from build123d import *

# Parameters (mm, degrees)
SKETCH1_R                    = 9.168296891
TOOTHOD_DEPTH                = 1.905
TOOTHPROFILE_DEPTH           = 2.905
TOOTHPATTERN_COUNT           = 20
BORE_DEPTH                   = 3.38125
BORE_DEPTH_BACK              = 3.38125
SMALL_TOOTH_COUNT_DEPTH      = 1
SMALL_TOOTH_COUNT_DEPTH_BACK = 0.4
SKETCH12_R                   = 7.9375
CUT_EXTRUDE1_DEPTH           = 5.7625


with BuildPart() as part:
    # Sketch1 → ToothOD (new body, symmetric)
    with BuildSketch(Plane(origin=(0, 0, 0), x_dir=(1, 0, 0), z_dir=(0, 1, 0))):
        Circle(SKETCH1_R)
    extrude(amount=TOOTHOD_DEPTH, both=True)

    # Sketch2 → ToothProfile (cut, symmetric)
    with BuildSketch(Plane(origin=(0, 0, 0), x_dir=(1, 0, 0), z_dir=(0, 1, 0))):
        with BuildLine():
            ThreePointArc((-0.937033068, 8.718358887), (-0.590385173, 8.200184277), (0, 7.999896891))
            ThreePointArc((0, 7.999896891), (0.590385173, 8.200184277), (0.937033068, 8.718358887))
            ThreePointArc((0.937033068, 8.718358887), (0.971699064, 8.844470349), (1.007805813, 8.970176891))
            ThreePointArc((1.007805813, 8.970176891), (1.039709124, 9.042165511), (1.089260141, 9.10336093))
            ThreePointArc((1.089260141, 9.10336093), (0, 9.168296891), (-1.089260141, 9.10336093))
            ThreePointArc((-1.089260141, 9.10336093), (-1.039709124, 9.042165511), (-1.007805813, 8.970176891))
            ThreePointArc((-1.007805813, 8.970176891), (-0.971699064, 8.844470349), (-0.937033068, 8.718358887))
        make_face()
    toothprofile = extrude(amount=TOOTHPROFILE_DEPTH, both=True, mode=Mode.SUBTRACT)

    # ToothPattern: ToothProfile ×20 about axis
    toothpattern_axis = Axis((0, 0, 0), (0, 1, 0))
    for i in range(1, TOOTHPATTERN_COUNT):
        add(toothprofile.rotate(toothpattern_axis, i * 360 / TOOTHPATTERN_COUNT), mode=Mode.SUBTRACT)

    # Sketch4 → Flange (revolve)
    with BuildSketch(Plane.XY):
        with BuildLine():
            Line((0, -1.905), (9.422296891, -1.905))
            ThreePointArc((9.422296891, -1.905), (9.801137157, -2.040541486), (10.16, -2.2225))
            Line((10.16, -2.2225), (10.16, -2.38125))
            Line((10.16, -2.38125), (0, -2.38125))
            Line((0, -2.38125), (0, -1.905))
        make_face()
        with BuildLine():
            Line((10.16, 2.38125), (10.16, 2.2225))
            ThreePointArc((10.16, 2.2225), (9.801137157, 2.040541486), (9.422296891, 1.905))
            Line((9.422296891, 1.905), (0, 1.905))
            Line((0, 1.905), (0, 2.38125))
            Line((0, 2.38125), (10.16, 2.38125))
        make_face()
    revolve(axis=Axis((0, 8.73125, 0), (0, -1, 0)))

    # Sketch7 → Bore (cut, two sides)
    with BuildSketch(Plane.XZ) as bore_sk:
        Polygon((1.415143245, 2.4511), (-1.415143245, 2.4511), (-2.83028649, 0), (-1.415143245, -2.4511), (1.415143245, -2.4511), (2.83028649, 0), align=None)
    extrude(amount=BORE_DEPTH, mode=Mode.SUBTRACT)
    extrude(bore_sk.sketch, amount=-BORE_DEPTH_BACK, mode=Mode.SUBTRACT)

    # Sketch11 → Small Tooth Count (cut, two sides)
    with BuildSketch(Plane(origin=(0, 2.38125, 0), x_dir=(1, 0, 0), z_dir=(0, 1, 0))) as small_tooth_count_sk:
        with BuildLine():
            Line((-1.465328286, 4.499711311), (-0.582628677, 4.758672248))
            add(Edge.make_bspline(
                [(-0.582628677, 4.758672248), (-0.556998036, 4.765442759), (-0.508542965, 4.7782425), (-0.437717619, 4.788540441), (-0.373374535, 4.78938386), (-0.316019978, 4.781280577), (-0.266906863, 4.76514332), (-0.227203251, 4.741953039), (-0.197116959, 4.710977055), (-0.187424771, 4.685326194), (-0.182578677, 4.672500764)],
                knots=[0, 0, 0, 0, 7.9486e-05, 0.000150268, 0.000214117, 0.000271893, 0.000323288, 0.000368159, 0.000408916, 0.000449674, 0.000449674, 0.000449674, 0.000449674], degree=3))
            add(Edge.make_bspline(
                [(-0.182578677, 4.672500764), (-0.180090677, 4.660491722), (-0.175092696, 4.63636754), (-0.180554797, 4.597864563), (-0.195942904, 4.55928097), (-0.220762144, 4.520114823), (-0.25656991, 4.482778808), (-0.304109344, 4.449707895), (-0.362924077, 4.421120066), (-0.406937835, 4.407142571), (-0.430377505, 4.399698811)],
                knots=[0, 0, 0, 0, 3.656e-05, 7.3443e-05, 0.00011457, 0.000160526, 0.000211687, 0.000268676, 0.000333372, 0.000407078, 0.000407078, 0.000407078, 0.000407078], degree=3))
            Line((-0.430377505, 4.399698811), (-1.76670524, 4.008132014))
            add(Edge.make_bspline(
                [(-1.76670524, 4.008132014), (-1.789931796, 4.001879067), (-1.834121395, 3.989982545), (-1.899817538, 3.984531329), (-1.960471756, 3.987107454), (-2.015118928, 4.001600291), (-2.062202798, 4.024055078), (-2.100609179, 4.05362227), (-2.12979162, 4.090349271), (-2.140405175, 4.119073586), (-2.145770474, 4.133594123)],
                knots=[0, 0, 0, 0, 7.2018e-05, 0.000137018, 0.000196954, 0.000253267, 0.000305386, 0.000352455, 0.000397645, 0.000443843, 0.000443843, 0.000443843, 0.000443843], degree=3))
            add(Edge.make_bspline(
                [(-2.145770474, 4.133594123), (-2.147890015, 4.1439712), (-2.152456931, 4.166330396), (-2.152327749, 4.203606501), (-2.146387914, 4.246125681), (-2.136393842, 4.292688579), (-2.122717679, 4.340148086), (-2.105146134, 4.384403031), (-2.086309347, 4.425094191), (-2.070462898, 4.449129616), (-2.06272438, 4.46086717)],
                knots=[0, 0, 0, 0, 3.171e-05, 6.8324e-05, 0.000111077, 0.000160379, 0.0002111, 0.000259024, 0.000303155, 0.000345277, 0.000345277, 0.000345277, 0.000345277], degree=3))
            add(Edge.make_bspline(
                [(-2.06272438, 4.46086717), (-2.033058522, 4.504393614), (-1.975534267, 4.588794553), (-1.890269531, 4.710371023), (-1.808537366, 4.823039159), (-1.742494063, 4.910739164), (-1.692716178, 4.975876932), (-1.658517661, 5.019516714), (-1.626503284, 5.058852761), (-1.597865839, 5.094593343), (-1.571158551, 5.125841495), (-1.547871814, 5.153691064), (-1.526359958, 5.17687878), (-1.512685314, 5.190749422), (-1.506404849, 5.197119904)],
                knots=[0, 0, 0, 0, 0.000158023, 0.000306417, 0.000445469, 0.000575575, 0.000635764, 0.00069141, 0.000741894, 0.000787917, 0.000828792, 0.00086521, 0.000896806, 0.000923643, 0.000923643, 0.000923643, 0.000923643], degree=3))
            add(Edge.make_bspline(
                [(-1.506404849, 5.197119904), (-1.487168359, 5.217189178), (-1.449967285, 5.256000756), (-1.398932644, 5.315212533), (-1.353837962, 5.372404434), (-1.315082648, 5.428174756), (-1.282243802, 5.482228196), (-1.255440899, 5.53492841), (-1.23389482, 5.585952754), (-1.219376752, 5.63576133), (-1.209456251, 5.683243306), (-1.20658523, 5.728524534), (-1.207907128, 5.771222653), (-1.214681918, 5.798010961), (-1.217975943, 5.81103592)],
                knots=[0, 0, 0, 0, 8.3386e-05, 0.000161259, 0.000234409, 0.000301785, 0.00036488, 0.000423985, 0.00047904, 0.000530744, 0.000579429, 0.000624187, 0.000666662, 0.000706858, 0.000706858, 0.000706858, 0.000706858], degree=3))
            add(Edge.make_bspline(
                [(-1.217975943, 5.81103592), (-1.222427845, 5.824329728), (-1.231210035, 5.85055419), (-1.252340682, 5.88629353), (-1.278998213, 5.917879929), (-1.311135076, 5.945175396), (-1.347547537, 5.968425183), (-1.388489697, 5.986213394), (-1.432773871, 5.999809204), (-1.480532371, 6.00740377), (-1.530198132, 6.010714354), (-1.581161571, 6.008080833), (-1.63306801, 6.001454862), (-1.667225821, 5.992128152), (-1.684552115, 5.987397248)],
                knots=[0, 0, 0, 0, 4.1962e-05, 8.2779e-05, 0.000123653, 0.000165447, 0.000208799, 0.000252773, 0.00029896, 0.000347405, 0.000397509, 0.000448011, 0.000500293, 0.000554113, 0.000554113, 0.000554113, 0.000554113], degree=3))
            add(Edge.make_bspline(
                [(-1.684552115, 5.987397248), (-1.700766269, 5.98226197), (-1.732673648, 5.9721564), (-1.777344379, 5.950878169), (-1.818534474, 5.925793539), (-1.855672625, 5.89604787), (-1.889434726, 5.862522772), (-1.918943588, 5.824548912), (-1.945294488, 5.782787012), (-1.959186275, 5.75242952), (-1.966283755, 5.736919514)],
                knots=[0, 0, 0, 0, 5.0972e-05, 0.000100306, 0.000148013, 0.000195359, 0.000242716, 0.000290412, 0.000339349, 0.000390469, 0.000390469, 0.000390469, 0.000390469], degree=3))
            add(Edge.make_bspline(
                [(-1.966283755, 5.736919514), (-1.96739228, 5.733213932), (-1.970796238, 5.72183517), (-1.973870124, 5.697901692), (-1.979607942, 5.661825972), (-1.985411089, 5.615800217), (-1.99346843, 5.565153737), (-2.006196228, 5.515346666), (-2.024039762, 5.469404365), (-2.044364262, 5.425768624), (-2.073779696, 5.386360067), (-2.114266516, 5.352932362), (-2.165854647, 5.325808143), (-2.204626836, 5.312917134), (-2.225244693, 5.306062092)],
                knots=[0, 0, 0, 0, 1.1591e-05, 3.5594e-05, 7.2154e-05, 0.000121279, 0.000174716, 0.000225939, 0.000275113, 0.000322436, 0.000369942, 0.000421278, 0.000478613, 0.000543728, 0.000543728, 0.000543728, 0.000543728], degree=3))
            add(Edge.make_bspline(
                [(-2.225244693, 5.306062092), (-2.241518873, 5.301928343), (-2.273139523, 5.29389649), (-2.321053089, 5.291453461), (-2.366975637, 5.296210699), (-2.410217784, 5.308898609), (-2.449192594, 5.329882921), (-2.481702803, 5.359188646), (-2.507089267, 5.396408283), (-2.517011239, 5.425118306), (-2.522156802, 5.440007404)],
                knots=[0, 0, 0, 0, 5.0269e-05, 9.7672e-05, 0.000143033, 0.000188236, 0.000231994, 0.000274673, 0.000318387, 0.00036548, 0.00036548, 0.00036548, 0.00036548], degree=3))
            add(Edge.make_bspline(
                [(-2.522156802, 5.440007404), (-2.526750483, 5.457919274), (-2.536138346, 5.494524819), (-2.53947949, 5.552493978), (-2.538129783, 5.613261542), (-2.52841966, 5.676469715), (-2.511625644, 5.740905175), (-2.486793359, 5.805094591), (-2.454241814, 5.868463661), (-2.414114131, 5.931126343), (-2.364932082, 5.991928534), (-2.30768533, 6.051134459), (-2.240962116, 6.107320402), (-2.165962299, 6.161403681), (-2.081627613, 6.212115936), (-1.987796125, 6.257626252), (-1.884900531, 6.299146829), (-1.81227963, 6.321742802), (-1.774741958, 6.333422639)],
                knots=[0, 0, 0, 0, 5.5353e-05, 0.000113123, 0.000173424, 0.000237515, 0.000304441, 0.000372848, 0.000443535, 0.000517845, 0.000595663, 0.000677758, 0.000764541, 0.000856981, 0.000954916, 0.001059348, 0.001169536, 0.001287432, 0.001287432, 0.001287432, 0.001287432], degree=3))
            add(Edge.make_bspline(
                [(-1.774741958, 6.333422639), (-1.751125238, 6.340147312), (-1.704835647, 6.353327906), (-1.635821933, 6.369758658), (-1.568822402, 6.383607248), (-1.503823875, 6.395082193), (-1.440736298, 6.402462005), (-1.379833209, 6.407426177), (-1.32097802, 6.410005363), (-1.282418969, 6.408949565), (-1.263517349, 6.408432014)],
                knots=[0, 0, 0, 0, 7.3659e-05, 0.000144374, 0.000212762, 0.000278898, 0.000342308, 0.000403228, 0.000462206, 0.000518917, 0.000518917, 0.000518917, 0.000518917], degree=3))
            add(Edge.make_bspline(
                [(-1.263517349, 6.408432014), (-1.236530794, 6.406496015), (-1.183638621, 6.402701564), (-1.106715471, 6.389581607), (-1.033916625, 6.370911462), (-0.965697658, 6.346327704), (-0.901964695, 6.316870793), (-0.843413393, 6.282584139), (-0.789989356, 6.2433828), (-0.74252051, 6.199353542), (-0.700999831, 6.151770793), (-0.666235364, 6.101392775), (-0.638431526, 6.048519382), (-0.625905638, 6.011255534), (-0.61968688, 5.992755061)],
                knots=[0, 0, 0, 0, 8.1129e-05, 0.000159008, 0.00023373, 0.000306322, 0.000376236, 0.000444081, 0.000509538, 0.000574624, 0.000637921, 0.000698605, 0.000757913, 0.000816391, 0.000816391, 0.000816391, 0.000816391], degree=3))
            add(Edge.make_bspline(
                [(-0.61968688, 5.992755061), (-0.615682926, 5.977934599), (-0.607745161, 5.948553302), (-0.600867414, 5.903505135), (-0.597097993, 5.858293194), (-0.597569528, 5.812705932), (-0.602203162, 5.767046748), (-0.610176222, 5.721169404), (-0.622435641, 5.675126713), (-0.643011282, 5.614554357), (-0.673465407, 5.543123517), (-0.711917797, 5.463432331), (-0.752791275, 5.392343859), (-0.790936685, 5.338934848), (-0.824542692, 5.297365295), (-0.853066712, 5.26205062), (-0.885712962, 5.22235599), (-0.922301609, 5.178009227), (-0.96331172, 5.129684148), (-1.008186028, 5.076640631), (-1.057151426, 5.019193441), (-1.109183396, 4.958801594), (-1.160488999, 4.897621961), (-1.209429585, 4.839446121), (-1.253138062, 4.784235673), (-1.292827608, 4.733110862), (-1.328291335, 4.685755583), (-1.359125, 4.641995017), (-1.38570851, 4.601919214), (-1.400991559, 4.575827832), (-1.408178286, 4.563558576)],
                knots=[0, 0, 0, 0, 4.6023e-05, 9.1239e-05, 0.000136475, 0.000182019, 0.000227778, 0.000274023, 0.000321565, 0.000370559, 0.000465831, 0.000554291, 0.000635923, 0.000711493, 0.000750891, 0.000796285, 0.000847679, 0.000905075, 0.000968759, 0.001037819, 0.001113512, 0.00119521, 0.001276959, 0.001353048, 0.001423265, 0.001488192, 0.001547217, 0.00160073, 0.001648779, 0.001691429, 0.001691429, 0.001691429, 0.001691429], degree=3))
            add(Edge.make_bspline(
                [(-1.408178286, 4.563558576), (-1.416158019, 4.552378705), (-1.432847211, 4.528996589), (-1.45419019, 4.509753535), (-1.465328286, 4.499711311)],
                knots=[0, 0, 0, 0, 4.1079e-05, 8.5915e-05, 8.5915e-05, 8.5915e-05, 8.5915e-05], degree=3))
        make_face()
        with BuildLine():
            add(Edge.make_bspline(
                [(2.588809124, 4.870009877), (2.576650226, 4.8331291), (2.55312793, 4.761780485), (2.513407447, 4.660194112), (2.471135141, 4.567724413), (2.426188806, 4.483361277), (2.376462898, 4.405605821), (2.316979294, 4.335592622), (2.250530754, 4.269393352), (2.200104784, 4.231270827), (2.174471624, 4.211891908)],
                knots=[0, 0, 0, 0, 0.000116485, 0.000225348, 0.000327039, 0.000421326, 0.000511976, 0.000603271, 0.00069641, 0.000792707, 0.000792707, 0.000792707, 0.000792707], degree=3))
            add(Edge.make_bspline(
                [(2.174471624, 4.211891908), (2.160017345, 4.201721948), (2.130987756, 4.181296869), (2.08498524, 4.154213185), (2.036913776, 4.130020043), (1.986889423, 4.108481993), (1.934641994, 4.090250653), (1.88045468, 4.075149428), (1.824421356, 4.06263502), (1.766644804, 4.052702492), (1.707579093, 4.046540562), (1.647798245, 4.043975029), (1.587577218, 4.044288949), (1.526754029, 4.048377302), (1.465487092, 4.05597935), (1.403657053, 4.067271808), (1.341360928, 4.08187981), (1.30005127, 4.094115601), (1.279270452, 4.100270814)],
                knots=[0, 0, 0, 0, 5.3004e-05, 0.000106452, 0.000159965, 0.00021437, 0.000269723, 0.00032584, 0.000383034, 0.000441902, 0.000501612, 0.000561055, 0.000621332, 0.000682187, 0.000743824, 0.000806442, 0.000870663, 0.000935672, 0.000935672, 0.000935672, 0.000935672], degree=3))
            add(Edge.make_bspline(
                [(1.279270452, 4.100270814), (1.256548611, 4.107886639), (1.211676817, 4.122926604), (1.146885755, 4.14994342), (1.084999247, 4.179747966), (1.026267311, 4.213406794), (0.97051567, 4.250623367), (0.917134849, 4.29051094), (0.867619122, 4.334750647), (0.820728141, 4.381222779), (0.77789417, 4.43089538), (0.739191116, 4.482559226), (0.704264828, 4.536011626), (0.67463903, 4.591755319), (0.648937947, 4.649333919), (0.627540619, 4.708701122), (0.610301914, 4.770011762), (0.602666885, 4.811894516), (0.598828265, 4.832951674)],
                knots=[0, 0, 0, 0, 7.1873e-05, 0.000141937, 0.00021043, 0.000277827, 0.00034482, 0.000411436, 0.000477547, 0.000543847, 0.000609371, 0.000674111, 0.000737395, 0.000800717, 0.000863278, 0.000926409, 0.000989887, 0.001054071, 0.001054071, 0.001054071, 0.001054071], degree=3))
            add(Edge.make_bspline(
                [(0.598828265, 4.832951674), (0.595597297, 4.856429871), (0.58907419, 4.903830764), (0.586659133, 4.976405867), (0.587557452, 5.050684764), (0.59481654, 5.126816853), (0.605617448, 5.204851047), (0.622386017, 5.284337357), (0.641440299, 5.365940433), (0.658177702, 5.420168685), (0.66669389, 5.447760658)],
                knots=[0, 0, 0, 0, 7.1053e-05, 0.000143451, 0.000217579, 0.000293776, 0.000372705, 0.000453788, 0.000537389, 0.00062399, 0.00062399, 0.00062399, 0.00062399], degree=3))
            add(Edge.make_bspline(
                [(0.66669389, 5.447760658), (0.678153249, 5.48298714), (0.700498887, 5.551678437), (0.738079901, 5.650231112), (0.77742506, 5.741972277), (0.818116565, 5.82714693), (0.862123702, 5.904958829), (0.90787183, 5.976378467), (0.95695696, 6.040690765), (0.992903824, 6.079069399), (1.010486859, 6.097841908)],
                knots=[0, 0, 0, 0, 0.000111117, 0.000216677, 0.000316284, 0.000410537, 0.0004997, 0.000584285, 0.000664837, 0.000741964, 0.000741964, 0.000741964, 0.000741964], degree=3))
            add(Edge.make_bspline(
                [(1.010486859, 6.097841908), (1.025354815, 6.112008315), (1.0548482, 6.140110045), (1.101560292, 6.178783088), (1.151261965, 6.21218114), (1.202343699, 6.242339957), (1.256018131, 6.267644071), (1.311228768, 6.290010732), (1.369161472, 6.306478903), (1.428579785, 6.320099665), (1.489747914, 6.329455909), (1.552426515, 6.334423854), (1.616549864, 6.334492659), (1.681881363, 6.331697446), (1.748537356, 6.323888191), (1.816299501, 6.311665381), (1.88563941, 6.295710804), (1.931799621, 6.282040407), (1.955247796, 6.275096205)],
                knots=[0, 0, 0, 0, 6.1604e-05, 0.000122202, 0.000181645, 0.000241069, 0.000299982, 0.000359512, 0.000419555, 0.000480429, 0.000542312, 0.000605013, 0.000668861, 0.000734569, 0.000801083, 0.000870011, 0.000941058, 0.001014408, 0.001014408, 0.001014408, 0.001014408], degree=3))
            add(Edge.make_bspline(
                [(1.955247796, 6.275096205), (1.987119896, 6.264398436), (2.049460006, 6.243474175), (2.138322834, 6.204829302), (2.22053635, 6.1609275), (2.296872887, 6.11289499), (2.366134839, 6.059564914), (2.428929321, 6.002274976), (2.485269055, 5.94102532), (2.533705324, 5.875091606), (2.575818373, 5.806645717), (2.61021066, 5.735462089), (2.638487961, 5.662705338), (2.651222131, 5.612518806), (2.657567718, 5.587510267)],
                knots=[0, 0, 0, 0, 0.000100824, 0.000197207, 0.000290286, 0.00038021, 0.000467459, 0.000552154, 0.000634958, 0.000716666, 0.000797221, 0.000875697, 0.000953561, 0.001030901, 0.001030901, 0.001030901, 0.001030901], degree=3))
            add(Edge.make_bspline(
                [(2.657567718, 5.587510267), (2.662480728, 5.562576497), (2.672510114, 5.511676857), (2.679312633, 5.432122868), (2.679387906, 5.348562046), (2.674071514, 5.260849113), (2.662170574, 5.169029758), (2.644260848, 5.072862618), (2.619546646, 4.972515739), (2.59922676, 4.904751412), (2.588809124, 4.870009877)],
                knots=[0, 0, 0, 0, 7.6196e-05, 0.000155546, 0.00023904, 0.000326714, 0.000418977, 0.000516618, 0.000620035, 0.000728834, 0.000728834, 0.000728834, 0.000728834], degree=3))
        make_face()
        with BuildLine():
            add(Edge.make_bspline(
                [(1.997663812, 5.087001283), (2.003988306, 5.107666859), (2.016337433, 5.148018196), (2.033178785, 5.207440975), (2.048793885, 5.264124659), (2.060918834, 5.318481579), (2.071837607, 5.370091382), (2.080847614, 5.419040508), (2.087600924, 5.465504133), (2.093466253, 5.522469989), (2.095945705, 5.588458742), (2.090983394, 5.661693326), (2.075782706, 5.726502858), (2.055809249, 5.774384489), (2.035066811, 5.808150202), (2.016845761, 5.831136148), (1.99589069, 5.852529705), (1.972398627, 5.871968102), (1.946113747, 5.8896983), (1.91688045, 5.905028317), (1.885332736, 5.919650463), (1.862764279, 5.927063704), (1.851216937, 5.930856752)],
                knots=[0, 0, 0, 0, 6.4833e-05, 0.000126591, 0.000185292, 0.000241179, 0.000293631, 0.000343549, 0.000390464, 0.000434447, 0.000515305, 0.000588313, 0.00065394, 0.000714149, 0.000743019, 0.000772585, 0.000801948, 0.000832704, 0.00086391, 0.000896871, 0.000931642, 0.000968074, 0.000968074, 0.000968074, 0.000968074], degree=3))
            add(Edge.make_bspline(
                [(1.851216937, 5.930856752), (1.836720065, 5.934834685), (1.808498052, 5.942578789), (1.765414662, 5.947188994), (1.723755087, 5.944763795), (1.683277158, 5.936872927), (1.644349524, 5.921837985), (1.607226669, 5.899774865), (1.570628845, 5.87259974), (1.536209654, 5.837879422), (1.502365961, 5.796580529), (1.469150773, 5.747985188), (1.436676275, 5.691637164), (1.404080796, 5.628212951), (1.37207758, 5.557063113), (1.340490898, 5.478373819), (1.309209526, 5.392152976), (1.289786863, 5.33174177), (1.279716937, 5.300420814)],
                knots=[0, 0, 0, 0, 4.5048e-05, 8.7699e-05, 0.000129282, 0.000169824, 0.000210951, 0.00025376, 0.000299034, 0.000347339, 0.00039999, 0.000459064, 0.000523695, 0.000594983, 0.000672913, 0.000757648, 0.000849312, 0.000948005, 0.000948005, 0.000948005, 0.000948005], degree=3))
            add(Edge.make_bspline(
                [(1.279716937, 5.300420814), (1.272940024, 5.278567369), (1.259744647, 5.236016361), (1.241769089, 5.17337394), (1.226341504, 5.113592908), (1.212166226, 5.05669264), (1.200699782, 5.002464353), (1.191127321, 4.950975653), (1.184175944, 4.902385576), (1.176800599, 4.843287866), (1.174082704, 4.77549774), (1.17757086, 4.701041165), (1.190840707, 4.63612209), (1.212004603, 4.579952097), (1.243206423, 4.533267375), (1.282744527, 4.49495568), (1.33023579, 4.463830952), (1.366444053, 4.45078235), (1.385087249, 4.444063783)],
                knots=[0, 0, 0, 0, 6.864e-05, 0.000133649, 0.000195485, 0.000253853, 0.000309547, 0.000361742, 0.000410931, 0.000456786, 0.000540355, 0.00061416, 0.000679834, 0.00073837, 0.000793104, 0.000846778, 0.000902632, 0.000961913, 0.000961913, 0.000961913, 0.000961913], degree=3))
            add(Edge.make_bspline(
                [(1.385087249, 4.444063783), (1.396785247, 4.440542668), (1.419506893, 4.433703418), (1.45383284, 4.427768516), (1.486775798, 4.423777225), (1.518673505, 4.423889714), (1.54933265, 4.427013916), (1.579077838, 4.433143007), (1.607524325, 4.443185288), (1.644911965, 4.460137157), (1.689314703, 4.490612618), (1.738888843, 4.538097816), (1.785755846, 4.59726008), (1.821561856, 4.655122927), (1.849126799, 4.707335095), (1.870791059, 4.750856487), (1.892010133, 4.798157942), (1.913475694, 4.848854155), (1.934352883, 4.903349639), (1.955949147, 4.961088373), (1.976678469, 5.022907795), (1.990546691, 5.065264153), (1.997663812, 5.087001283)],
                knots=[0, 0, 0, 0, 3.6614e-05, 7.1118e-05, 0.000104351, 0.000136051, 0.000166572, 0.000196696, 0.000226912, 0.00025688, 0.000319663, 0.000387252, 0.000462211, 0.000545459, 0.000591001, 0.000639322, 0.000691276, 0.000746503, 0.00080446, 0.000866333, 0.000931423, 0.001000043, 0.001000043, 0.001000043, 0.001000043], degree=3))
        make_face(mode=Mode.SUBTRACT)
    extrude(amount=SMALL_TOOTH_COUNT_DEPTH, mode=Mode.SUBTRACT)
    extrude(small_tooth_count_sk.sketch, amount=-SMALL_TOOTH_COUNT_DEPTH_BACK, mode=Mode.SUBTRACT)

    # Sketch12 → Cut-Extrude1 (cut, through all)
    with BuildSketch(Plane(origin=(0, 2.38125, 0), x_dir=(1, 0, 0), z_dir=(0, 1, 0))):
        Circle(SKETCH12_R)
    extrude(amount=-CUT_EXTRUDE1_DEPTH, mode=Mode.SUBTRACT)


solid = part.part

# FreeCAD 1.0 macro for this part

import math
import FreeCAD as App
import Part
import Sketcher
Q = App.Units.Quantity


def add_polygon(sketch, points):
    """Adds a closed chain of lines whose ends are joined by coincident constraints."""
    first, n = sketch.GeometryCount, len(points)
    for a, b in zip(points, points[1:] + points[:1]):
        sketch.addGeometry(Part.LineSegment(App.Vector(*a, 0), App.Vector(*b, 0)), False)
    for i in range(n):
        sketch.addConstraint(Sketcher.Constraint("Coincident", first + i, 2, first + (i + 1) % n, 1))

doc = App.newDocument("Part")
body = doc.addObject("PartDesign::Body", "Body")

sketch1 = body.newObject("Sketcher::SketchObject", "Sketch")
sketch1.AttachmentSupport = (doc.getObject("XZ_Plane"), [""])
sketch1.MapMode = "FlatFace"
sketch1.addGeometry(Part.Circle(App.Vector(0, 0, 0), App.Vector(0, 0, 1), 9), False)
sketch1.addConstraint([
    Sketcher.Constraint("Coincident", 0, 3, -1, 1),
    Sketcher.Constraint("Diameter", 0, 18.336594),
])
pad1 = body.newObject("PartDesign::Pad", "Pad")
pad1.Profile = sketch1
pad1.Length = Q("0.15 in")
pad1.Midplane = True

sketch2 = body.newObject("Sketcher::SketchObject", "Sketch001")
sketch2.AttachmentSupport = (doc.getObject("XZ_Plane"), [""])
sketch2.MapMode = "FlatFace"
sketch2.addGeometry([
    Part.ArcOfCircle(Part.Circle(App.Vector(0, -8.97, 0), App.Vector(0, 0, 1), 0.97), math.radians(90), math.radians(165)),
    Part.ArcOfCircle(Part.Circle(App.Vector(0, -8.97, 0), App.Vector(0, 0, 1), 0.97), math.radians(15), math.radians(90)),
    Part.ArcOfCircle(Part.Circle(App.Vector(11.98, -5.75, 0), App.Vector(0, 0, 1), 11.43), math.radians(-164.96), math.radians(-163.65)),
    Part.ArcOfCircle(Part.Circle(App.Vector(1.3, -8.89, 0), App.Vector(0, 0, 1), 0.3), math.radians(-164), math.radians(-133)),
    Part.ArcOfCircle(Part.Circle(App.Vector(0, 0, 0), App.Vector(0, 0, 1), 9.17), math.radians(-96.82), math.radians(-83.18)),
    Part.ArcOfCircle(Part.Circle(App.Vector(-1.3, -8.89, 0), App.Vector(0, 0, 1), 0.3), math.radians(-47), math.radians(-16)),
    Part.ArcOfCircle(Part.Circle(App.Vector(-11.98, -5.75, 0), App.Vector(0, 0, 1), 11.43), math.radians(-16.35), math.radians(-15.04)),
], False)
sketch2.addConstraint([
    Sketcher.Constraint("Tangent", 0, 1, 1, 2),
    Sketcher.Constraint("Tangent", 1, 1, 2, 1),
    Sketcher.Constraint("Tangent", 2, 2, 3, 1),
    Sketcher.Constraint("Coincident", 3, 2, 4, 2),
    Sketcher.Constraint("Coincident", 4, 1, 5, 1),
    Sketcher.Constraint("Tangent", 5, 2, 6, 1),
    Sketcher.Constraint("Tangent", 6, 2, 0, 2),
    Sketcher.Constraint("Coincident", 4, 3, -1, 1),
    Sketcher.Constraint("Equal", 0, 1),
    Sketcher.Constraint("Equal", 3, 5),
    Sketcher.Constraint("Equal", 2, 6),
    Sketcher.Constraint("Symmetric", 3, 3, 5, 3, -2),
    Sketcher.Constraint("PointOnObject", 0, 3, -2),
    Sketcher.Constraint("PointOnObject", 0, 1, -2),
    Sketcher.Constraint("Horizontal", 1, 3, 2, 2),
    Sketcher.Constraint("Radius", 0, Q("0.0382 in")),
    Sketcher.Constraint("Radius", 3, Q("0.0118 in")),
    Sketcher.Constraint("DistanceX", -1, 1, 3, 3, Q("0.051 in")),
    Sketcher.Constraint("DistanceY", 3, 2, -1, 1, Q("0.3584 in")),
    Sketcher.Constraint("Radius", 2, 11.430005),
    Sketcher.Constraint("Radius", 4, 9.168297),
])
pocket1 = body.newObject("PartDesign::Pocket", "Pocket")
pocket1.Profile = sketch2
pocket1.Length = 5.81
pocket1.Midplane = True
doc.recompute()

polarpattern = body.newObject("PartDesign::PolarPattern", "PolarPattern")
polarpattern.Originals = [pocket1]
polarpattern.Axis = (doc.getObject("Y_Axis"), [""])
polarpattern.Angle = 360
polarpattern.Occurrences = 20
body.Tip = polarpattern

sketch3 = body.newObject("Sketcher::SketchObject", "Sketch002")
sketch3.AttachmentSupport = (doc.getObject("XY_Plane"), [""])
sketch3.MapMode = "FlatFace"
sketch3.addGeometry([
    Part.LineSegment(App.Vector(9.42, -1.91, 0), App.Vector(0, -1.91, 0)),
    Part.LineSegment(App.Vector(0, -1.91, 0), App.Vector(0, -2.38, 0)),
    Part.LineSegment(App.Vector(0, -2.38, 0), App.Vector(10.16, -2.38, 0)),
    Part.LineSegment(App.Vector(10.16, -2.38, 0), App.Vector(10.16, -2.22, 0)),
    Part.ArcOfCircle(Part.Circle(App.Vector(8.53, -4.98, 0), App.Vector(0, 0, 1), 3.2), math.radians(59.51), math.radians(73.91)),
    Part.LineSegment(App.Vector(10.16, 2.22, 0), App.Vector(10.16, 2.38, 0)),
    Part.LineSegment(App.Vector(10.16, 2.38, 0), App.Vector(0, 2.38, 0)),
    Part.LineSegment(App.Vector(0, 2.38, 0), App.Vector(0, 1.91, 0)),
    Part.LineSegment(App.Vector(0, 1.91, 0), App.Vector(9.42, 1.91, 0)),
    Part.ArcOfCircle(Part.Circle(App.Vector(8.53, 4.98, 0), App.Vector(0, 0, 1), 3.2), math.radians(-73.91), math.radians(-59.51)),
], False)
sketch3.addConstraint([
    Sketcher.Constraint("Coincident", 0, 2, 1, 1),
    Sketcher.Constraint("Coincident", 1, 2, 2, 1),
    Sketcher.Constraint("Coincident", 2, 2, 3, 1),
    Sketcher.Constraint("Coincident", 3, 2, 4, 1),
    Sketcher.Constraint("Coincident", 4, 2, 0, 1),
    Sketcher.Constraint("Coincident", 5, 2, 6, 1),
    Sketcher.Constraint("Coincident", 6, 2, 7, 1),
    Sketcher.Constraint("Coincident", 7, 2, 8, 1),
    Sketcher.Constraint("Coincident", 8, 2, 9, 1),
    Sketcher.Constraint("Coincident", 9, 2, 5, 1),
    Sketcher.Constraint("Horizontal", 0),
    Sketcher.Constraint("Vertical", 1),
    Sketcher.Constraint("Horizontal", 2),
    Sketcher.Constraint("Vertical", 3),
    Sketcher.Constraint("Vertical", 5),
    Sketcher.Constraint("Horizontal", 6),
    Sketcher.Constraint("Vertical", 7),
    Sketcher.Constraint("Horizontal", 8),
    Sketcher.Constraint("Equal", 4, 9),
    Sketcher.Constraint("Symmetric", 1, 2, 6, 2, -1, 1),
    Sketcher.Constraint("Symmetric", 4, 3, 9, 3, -1),
    Sketcher.Constraint("Symmetric", 0, 2, 7, 2, -1),
    Sketcher.Constraint("Vertical", 3, 2, 5, 2),
    Sketcher.Constraint("DistanceX", 2, 1, 2, 2, Q("0.4 in")),
    Sketcher.Constraint("DistanceY", 0, 2, 7, 2, Q("0.15 in")),
    Sketcher.Constraint("DistanceY", 1, 2, -1, 1, Q("0.09375 in")),
    Sketcher.Constraint("DistanceY", 3, 2, 9, 2, Q("0.175 in")),
    Sketcher.Constraint("Radius", 4, 3.203644),
    Sketcher.Constraint("DistanceX", 0, 2, 0, 1, 9.422297),
])
revolution = body.newObject("PartDesign::Revolution", "Revolution")
revolution.Profile = sketch3
revolution.ReferenceAxis = (sketch3, ["V_Axis"])
revolution.Angle = 360

sketch4 = body.newObject("Sketcher::SketchObject", "Sketch003")
sketch4.AttachmentSupport = (doc.getObject("XZ_Plane"), [""])
sketch4.MapMode = "FlatFace"
add_polygon(sketch4, [(1.4, 2.5), (-1.4, 2.5), (-2.8, 0), (-1.4, -2.5), (1.4, -2.5), (2.8, 0)])
sketch4.addConstraint([
    Sketcher.Constraint("Horizontal", 0),
    Sketcher.Constraint("Horizontal", 3),
    Sketcher.Constraint("Symmetric", 0, 2, 3, 2, -1, 1),
    Sketcher.Constraint("Symmetric", 1, 2, 4, 2, -1, 1),
    Sketcher.Constraint("PointOnObject", 1, 2, -1),
    Sketcher.Constraint("Parallel", 2, 5),
    Sketcher.Constraint("Vertical", 0, 2, 2, 2),
    Sketcher.Constraint("Angle", 1, Q("-120 deg")),
    Sketcher.Constraint("DistanceY", 2, 2, 0, 2, Q("0.193 in")),
    Sketcher.Constraint("DistanceX", 0, 2, 0, 1, 2.830286),
])
pocket2 = body.newObject("PartDesign::Pocket", "Pocket001")
pocket2.Profile = sketch4
pocket2.Type = "ThroughAll"
pocket2.Midplane = True

sketch5 = body.newObject("Sketcher::SketchObject", "Sketch004")
sketch5.AttachmentSupport = (doc.getObject("XZ_Plane"), [""])
sketch5.MapMode = "FlatFace"
sketch5.AttachmentOffset = App.Placement(App.Vector(0, 0, -0.09375 * 25.4), App.Rotation())
sketch5.addGeometry([
    Part.LineSegment(App.Vector(-0.582629, -4.758672, 0), App.Vector(-1.465328, -4.499711, 0)),
    Part.BSplineCurve([App.Vector(-1.408178, -4.563559, 0), App.Vector(-1.416158, -4.552379, 0), App.Vector(-1.432847, -4.528997, 0), App.Vector(-1.45419, -4.509754, 0), App.Vector(-1.465328, -4.499711, 0)], [4, 1, 4], [0, 0.000041079, 0.000085915], False, 3, [1, 1, 1, 1, 1], False),
    Part.BSplineCurve([App.Vector(-0.619687, -5.992755, 0), App.Vector(-0.615683, -5.977935, 0), App.Vector(-0.607745, -5.948553, 0), App.Vector(-0.600867, -5.903505, 0), App.Vector(-0.597098, -5.858293, 0), App.Vector(-0.59757, -5.812706, 0), App.Vector(-0.602203, -5.767047, 0), App.Vector(-0.610176, -5.721169, 0), App.Vector(-0.622436, -5.675127, 0), App.Vector(-0.643011, -5.614554, 0), App.Vector(-0.673465, -5.543124, 0), App.Vector(-0.711918, -5.463432, 0), App.Vector(-0.752791, -5.392344, 0), App.Vector(-0.790937, -5.338935, 0), App.Vector(-0.824543, -5.297365, 0), App.Vector(-0.853067, -5.262051, 0), App.Vector(-0.885713, -5.222356, 0), App.Vector(-0.922302, -5.178009, 0), App.Vector(-0.963312, -5.129684, 0), App.Vector(-1.008186, -5.076641, 0), App.Vector(-1.057151, -5.019193, 0), App.Vector(-1.109183, -4.958802, 0), App.Vector(-1.160489, -4.897622, 0), App.Vector(-1.20943, -4.839446, 0), App.Vector(-1.253138, -4.784236, 0), App.Vector(-1.292828, -4.733111, 0), App.Vector(-1.328291, -4.685756, 0), App.Vector(-1.359125, -4.641995, 0), App.Vector(-1.385709, -4.601919, 0), App.Vector(-1.400992, -4.575828, 0), App.Vector(-1.408178, -4.563559, 0)], [4, 1, 1, 1, 1, 1, 1, 1, 1, 1, 1, 1, 1, 1, 1, 1, 1, 1, 1, 1, 1, 1, 1, 1, 1, 1, 1, 1, 4], [0, 0.000046023, 0.000091239, 0.000136475, 0.000182019, 0.000227778, 0.000274023, 0.000321565, 0.000370559, 0.000465831, 0.000554291, 0.000635923, 0.000711493, 0.000750891, 0.000796285, 0.000847679, 0.000905075, 0.000968759, 0.001037819, 0.001113512, 0.00119521, 0.001276959, 0.001353048, 0.001423265, 0.001488192, 0.001547217, 0.00160073, 0.001648779, 0.001691429], False, 3, [1, 1, 1, 1, 1, 1, 1, 1, 1, 1, 1, 1, 1, 1, 1, 1, 1, 1, 1, 1, 1, 1, 1, 1, 1, 1, 1, 1, 1, 1, 1], False),
    Part.BSplineCurve([App.Vector(-1.263517, -6.408432, 0), App.Vector(-1.236531, -6.406496, 0), App.Vector(-1.183639, -6.402702, 0), App.Vector(-1.106715, -6.389582, 0), App.Vector(-1.033917, -6.370911, 0), App.Vector(-0.965698, -6.346328, 0), App.Vector(-0.901965, -6.316871, 0), App.Vector(-0.843413, -6.282584, 0), App.Vector(-0.789989, -6.243383, 0), App.Vector(-0.742521, -6.199354, 0), App.Vector(-0.701, -6.151771, 0), App.Vector(-0.666235, -6.101393, 0), App.Vector(-0.638432, -6.048519, 0), App.Vector(-0.625906, -6.011256, 0), App.Vector(-0.619687, -5.992755, 0)], [4, 1, 1, 1, 1, 1, 1, 1, 1, 1, 1, 1, 4], [0, 0.000081129, 0.000159008, 0.00023373, 0.000306322, 0.000376236, 0.000444081, 0.000509538, 0.000574624, 0.000637921, 0.000698605, 0.000757913, 0.000816391], False, 3, [1, 1, 1, 1, 1, 1, 1, 1, 1, 1, 1, 1, 1, 1, 1], False),
    Part.BSplineCurve([App.Vector(-1.774742, -6.333423, 0), App.Vector(-1.751125, -6.340147, 0), App.Vector(-1.704836, -6.353328, 0), App.Vector(-1.635822, -6.369759, 0), App.Vector(-1.568822, -6.383607, 0), App.Vector(-1.503824, -6.395082, 0), App.Vector(-1.440736, -6.402462, 0), App.Vector(-1.379833, -6.407426, 0), App.Vector(-1.320978, -6.410005, 0), App.Vector(-1.282419, -6.40895, 0), App.Vector(-1.263517, -6.408432, 0)], [4, 1, 1, 1, 1, 1, 1, 1, 4], [0, 0.000073659, 0.000144374, 0.000212762, 0.000278898, 0.000342308, 0.000403228, 0.000462206, 0.000518917], False, 3, [1, 1, 1, 1, 1, 1, 1, 1, 1, 1, 1], False),
    Part.BSplineCurve([App.Vector(-2.522157, -5.440007, 0), App.Vector(-2.52675, -5.457919, 0), App.Vector(-2.536138, -5.494525, 0), App.Vector(-2.539479, -5.552494, 0), App.Vector(-2.53813, -5.613262, 0), App.Vector(-2.52842, -5.67647, 0), App.Vector(-2.511626, -5.740905, 0), App.Vector(-2.486793, -5.805095, 0), App.Vector(-2.454242, -5.868464, 0), App.Vector(-2.414114, -5.931126, 0), App.Vector(-2.364932, -5.991929, 0), App.Vector(-2.307685, -6.051134, 0), App.Vector(-2.240962, -6.10732, 0), App.Vector(-2.165962, -6.161404, 0), App.Vector(-2.081628, -6.212116, 0), App.Vector(-1.987796, -6.257626, 0), App.Vector(-1.884901, -6.299147, 0), App.Vector(-1.81228, -6.321743, 0), App.Vector(-1.774742, -6.333423, 0)], [4, 1, 1, 1, 1, 1, 1, 1, 1, 1, 1, 1, 1, 1, 1, 1, 4], [0, 0.000055353, 0.000113123, 0.000173424, 0.000237515, 0.000304441, 0.000372848, 0.000443535, 0.000517845, 0.000595663, 0.000677758, 0.000764541, 0.000856981, 0.000954916, 0.001059348, 0.001169536, 0.001287432], False, 3, [1, 1, 1, 1, 1, 1, 1, 1, 1, 1, 1, 1, 1, 1, 1, 1, 1, 1, 1], False),
    Part.BSplineCurve([App.Vector(-2.225245, -5.306062, 0), App.Vector(-2.241519, -5.301928, 0), App.Vector(-2.27314, -5.293896, 0), App.Vector(-2.321053, -5.291453, 0), App.Vector(-2.366976, -5.296211, 0), App.Vector(-2.410218, -5.308899, 0), App.Vector(-2.449193, -5.329883, 0), App.Vector(-2.481703, -5.359189, 0), App.Vector(-2.507089, -5.396408, 0), App.Vector(-2.517011, -5.425118, 0), App.Vector(-2.522157, -5.440007, 0)], [4, 1, 1, 1, 1, 1, 1, 1, 4], [0, 0.000050269, 0.000097672, 0.000143033, 0.000188236, 0.000231994, 0.000274673, 0.000318387, 0.00036548], False, 3, [1, 1, 1, 1, 1, 1, 1, 1, 1, 1, 1], False),
    Part.BSplineCurve([App.Vector(-1.966284, -5.73692, 0), App.Vector(-1.967392, -5.733214, 0), App.Vector(-1.970796, -5.721835, 0), App.Vector(-1.97387, -5.697902, 0), App.Vector(-1.979608, -5.661826, 0), App.Vector(-1.985411, -5.6158, 0), App.Vector(-1.993468, -5.565154, 0), App.Vector(-2.006196, -5.515347, 0), App.Vector(-2.02404, -5.469404, 0), App.Vector(-2.044364, -5.425769, 0), App.Vector(-2.07378, -5.38636, 0), App.Vector(-2.114267, -5.352932, 0), App.Vector(-2.165855, -5.325808, 0), App.Vector(-2.204627, -5.312917, 0), App.Vector(-2.225245, -5.306062, 0)], [4, 1, 1, 1, 1, 1, 1, 1, 1, 1, 1, 1, 4], [0, 0.000011591, 0.000035594, 0.000072154, 0.000121279, 0.000174716, 0.000225939, 0.000275113, 0.000322436, 0.000369942, 0.000421278, 0.000478613, 0.000543728], False, 3, [1, 1, 1, 1, 1, 1, 1, 1, 1, 1, 1, 1, 1, 1, 1], False),
    Part.BSplineCurve([App.Vector(-1.684552, -5.987397, 0), App.Vector(-1.700766, -5.982262, 0), App.Vector(-1.732674, -5.972156, 0), App.Vector(-1.777344, -5.950878, 0), App.Vector(-1.818534, -5.925794, 0), App.Vector(-1.855673, -5.896048, 0), App.Vector(-1.889435, -5.862523, 0), App.Vector(-1.918944, -5.824549, 0), App.Vector(-1.945294, -5.782787, 0), App.Vector(-1.959186, -5.75243, 0), App.Vector(-1.966284, -5.73692, 0)], [4, 1, 1, 1, 1, 1, 1, 1, 4], [0, 0.000050972, 0.000100306, 0.000148013, 0.000195359, 0.000242716, 0.000290412, 0.000339349, 0.000390469], False, 3, [1, 1, 1, 1, 1, 1, 1, 1, 1, 1, 1], False),
    Part.BSplineCurve([App.Vector(-1.217976, -5.811036, 0), App.Vector(-1.222428, -5.82433, 0), App.Vector(-1.23121, -5.850554, 0), App.Vector(-1.252341, -5.886294, 0), App.Vector(-1.278998, -5.91788, 0), App.Vector(-1.311135, -5.945175, 0), App.Vector(-1.347548, -5.968425, 0), App.Vector(-1.38849, -5.986213, 0), App.Vector(-1.432774, -5.999809, 0), App.Vector(-1.480532, -6.007404, 0), App.Vector(-1.530198, -6.010714, 0), App.Vector(-1.581162, -6.008081, 0), App.Vector(-1.633068, -6.001455, 0), App.Vector(-1.667226, -5.992128, 0), App.Vector(-1.684552, -5.987397, 0)], [4, 1, 1, 1, 1, 1, 1, 1, 1, 1, 1, 1, 4], [0, 0.000041962, 0.000082779, 0.000123653, 0.000165447, 0.000208799, 0.000252773, 0.00029896, 0.000347405, 0.000397509, 0.000448011, 0.000500293, 0.000554113], False, 3, [1, 1, 1, 1, 1, 1, 1, 1, 1, 1, 1, 1, 1, 1, 1], False),
    Part.BSplineCurve([App.Vector(-1.506405, -5.19712, 0), App.Vector(-1.487168, -5.217189, 0), App.Vector(-1.449967, -5.256001, 0), App.Vector(-1.398933, -5.315213, 0), App.Vector(-1.353838, -5.372404, 0), App.Vector(-1.315083, -5.428175, 0), App.Vector(-1.282244, -5.482228, 0), App.Vector(-1.255441, -5.534928, 0), App.Vector(-1.233895, -5.585953, 0), App.Vector(-1.219377, -5.635761, 0), App.Vector(-1.209456, -5.683243, 0), App.Vector(-1.206585, -5.728525, 0), App.Vector(-1.207907, -5.771223, 0), App.Vector(-1.214682, -5.798011, 0), App.Vector(-1.217976, -5.811036, 0)], [4, 1, 1, 1, 1, 1, 1, 1, 1, 1, 1, 1, 4], [0, 0.000083386, 0.000161259, 0.000234409, 0.000301785, 0.00036488, 0.000423985, 0.00047904, 0.000530744, 0.000579429, 0.000624187, 0.000666662, 0.000706858], False, 3, [1, 1, 1, 1, 1, 1, 1, 1, 1, 1, 1, 1, 1, 1, 1], False),
    Part.BSplineCurve([App.Vector(-2.062724, -4.460867, 0), App.Vector(-2.033059, -4.504394, 0), App.Vector(-1.975534, -4.588795, 0), App.Vector(-1.89027, -4.710371, 0), App.Vector(-1.808537, -4.823039, 0), App.Vector(-1.742494, -4.910739, 0), App.Vector(-1.692716, -4.975877, 0), App.Vector(-1.658518, -5.019517, 0), App.Vector(-1.626503, -5.058853, 0), App.Vector(-1.597866, -5.094593, 0), App.Vector(-1.571159, -5.125841, 0), App.Vector(-1.547872, -5.153691, 0), App.Vector(-1.52636, -5.176879, 0), App.Vector(-1.512685, -5.190749, 0), App.Vector(-1.506405, -5.19712, 0)], [4, 1, 1, 1, 1, 1, 1, 1, 1, 1, 1, 1, 4], [0, 0.000158023, 0.000306417, 0.000445469, 0.000575575, 0.000635764, 0.00069141, 0.000741894, 0.000787917, 0.000828792, 0.00086521, 0.000896806, 0.000923643], False, 3, [1, 1, 1, 1, 1, 1, 1, 1, 1, 1, 1, 1, 1, 1, 1], False),
    Part.BSplineCurve([App.Vector(-2.14577, -4.133594, 0), App.Vector(-2.14789, -4.143971, 0), App.Vector(-2.152457, -4.16633, 0), App.Vector(-2.152328, -4.203607, 0), App.Vector(-2.146388, -4.246126, 0), App.Vector(-2.136394, -4.292689, 0), App.Vector(-2.122718, -4.340148, 0), App.Vector(-2.105146, -4.384403, 0), App.Vector(-2.086309, -4.425094, 0), App.Vector(-2.070463, -4.44913, 0), App.Vector(-2.062724, -4.460867, 0)], [4, 1, 1, 1, 1, 1, 1, 1, 4], [0, 0.00003171, 0.000068324, 0.000111077, 0.000160379, 0.0002111, 0.000259024, 0.000303155, 0.000345277], False, 3, [1, 1, 1, 1, 1, 1, 1, 1, 1, 1, 1], False),
    Part.BSplineCurve([App.Vector(-1.766705, -4.008132, 0), App.Vector(-1.789932, -4.001879, 0), App.Vector(-1.834121, -3.989983, 0), App.Vector(-1.899818, -3.984531, 0), App.Vector(-1.960472, -3.987107, 0), App.Vector(-2.015119, -4.0016, 0), App.Vector(-2.062203, -4.024055, 0), App.Vector(-2.100609, -4.053622, 0), App.Vector(-2.129792, -4.090349, 0), App.Vector(-2.140405, -4.119074, 0), App.Vector(-2.14577, -4.133594, 0)], [4, 1, 1, 1, 1, 1, 1, 1, 4], [0, 0.000072018, 0.000137018, 0.000196954, 0.000253267, 0.000305386, 0.000352455, 0.000397645, 0.000443843], False, 3, [1, 1, 1, 1, 1, 1, 1, 1, 1, 1, 1], False),
    Part.LineSegment(App.Vector(-1.766705, -4.008132, 0), App.Vector(-0.430378, -4.399699, 0)),
    Part.BSplineCurve([App.Vector(-0.182579, -4.672501, 0), App.Vector(-0.180091, -4.660492, 0), App.Vector(-0.175093, -4.636368, 0), App.Vector(-0.180555, -4.597865, 0), App.Vector(-0.195943, -4.559281, 0), App.Vector(-0.220762, -4.520115, 0), App.Vector(-0.25657, -4.482779, 0), App.Vector(-0.304109, -4.449708, 0), App.Vector(-0.362924, -4.42112, 0), App.Vector(-0.406938, -4.407143, 0), App.Vector(-0.430378, -4.399699, 0)], [4, 1, 1, 1, 1, 1, 1, 1, 4], [0, 0.00003656, 0.000073443, 0.00011457, 0.000160526, 0.000211687, 0.000268676, 0.000333372, 0.000407078], False, 3, [1, 1, 1, 1, 1, 1, 1, 1, 1, 1, 1], False),
    Part.BSplineCurve([App.Vector(-0.582629, -4.758672, 0), App.Vector(-0.556998, -4.765443, 0), App.Vector(-0.508543, -4.778243, 0), App.Vector(-0.437718, -4.78854, 0), App.Vector(-0.373375, -4.789384, 0), App.Vector(-0.31602, -4.781281, 0), App.Vector(-0.266907, -4.765143, 0), App.Vector(-0.227203, -4.741953, 0), App.Vector(-0.197117, -4.710977, 0), App.Vector(-0.187425, -4.685326, 0), App.Vector(-0.182579, -4.672501, 0)], [4, 1, 1, 1, 1, 1, 1, 1, 4], [0, 0.000079486, 0.000150268, 0.000214117, 0.000271893, 0.000323288, 0.000368159, 0.000408916, 0.000449674], False, 3, [1, 1, 1, 1, 1, 1, 1, 1, 1, 1, 1], False),
    Part.BSplineCurve([App.Vector(2.588809, -4.87001, 0), App.Vector(2.57665, -4.833129, 0), App.Vector(2.553128, -4.76178, 0), App.Vector(2.513407, -4.660194, 0), App.Vector(2.471135, -4.567724, 0), App.Vector(2.426189, -4.483361, 0), App.Vector(2.376463, -4.405606, 0), App.Vector(2.316979, -4.335593, 0), App.Vector(2.250531, -4.269393, 0), App.Vector(2.200105, -4.231271, 0), App.Vector(2.174472, -4.211892, 0)], [4, 1, 1, 1, 1, 1, 1, 1, 4], [0, 0.000116485, 0.000225348, 0.000327039, 0.000421326, 0.000511976, 0.000603271, 0.00069641, 0.000792707], False, 3, [1, 1, 1, 1, 1, 1, 1, 1, 1, 1, 1], False),
    Part.BSplineCurve([App.Vector(2.657568, -5.58751, 0), App.Vector(2.662481, -5.562576, 0), App.Vector(2.67251, -5.511677, 0), App.Vector(2.679313, -5.432123, 0), App.Vector(2.679388, -5.348562, 0), App.Vector(2.674072, -5.260849, 0), App.Vector(2.662171, -5.16903, 0), App.Vector(2.644261, -5.072863, 0), App.Vector(2.619547, -4.972516, 0), App.Vector(2.599227, -4.904751, 0), App.Vector(2.588809, -4.87001, 0)], [4, 1, 1, 1, 1, 1, 1, 1, 4], [0, 0.000076196, 0.000155546, 0.00023904, 0.000326714, 0.000418977, 0.000516618, 0.000620035, 0.000728834], False, 3, [1, 1, 1, 1, 1, 1, 1, 1, 1, 1, 1], False),
    Part.BSplineCurve([App.Vector(1.955248, -6.275096, 0), App.Vector(1.98712, -6.264398, 0), App.Vector(2.04946, -6.243474, 0), App.Vector(2.138323, -6.204829, 0), App.Vector(2.220536, -6.160927, 0), App.Vector(2.296873, -6.112895, 0), App.Vector(2.366135, -6.059565, 0), App.Vector(2.428929, -6.002275, 0), App.Vector(2.485269, -5.941025, 0), App.Vector(2.533705, -5.875092, 0), App.Vector(2.575818, -5.806646, 0), App.Vector(2.610211, -5.735462, 0), App.Vector(2.638488, -5.662705, 0), App.Vector(2.651222, -5.612519, 0), App.Vector(2.657568, -5.58751, 0)], [4, 1, 1, 1, 1, 1, 1, 1, 1, 1, 1, 1, 4], [0, 0.000100824, 0.000197207, 0.000290286, 0.00038021, 0.000467459, 0.000552154, 0.000634958, 0.000716666, 0.000797221, 0.000875697, 0.000953561, 0.001030901], False, 3, [1, 1, 1, 1, 1, 1, 1, 1, 1, 1, 1, 1, 1, 1, 1], False),
    Part.BSplineCurve([App.Vector(1.010487, -6.097842, 0), App.Vector(1.025355, -6.112008, 0), App.Vector(1.054848, -6.14011, 0), App.Vector(1.10156, -6.178783, 0), App.Vector(1.151262, -6.212181, 0), App.Vector(1.202344, -6.24234, 0), App.Vector(1.256018, -6.267644, 0), App.Vector(1.311229, -6.290011, 0), App.Vector(1.369161, -6.306479, 0), App.Vector(1.42858, -6.3201, 0), App.Vector(1.489748, -6.329456, 0), App.Vector(1.552427, -6.334424, 0), App.Vector(1.61655, -6.334493, 0), App.Vector(1.681881, -6.331697, 0), App.Vector(1.748537, -6.323888, 0), App.Vector(1.8163, -6.311665, 0), App.Vector(1.885639, -6.295711, 0), App.Vector(1.9318, -6.28204, 0), App.Vector(1.955248, -6.275096, 0)], [4, 1, 1, 1, 1, 1, 1, 1, 1, 1, 1, 1, 1, 1, 1, 1, 4], [0, 0.000061604, 0.000122202, 0.000181645, 0.000241069, 0.000299982, 0.000359512, 0.000419555, 0.000480429, 0.000542312, 0.000605013, 0.000668861, 0.000734569, 0.000801083, 0.000870011, 0.000941058, 0.001014408], False, 3, [1, 1, 1, 1, 1, 1, 1, 1, 1, 1, 1, 1, 1, 1, 1, 1, 1, 1, 1], False),
    Part.BSplineCurve([App.Vector(0.666694, -5.447761, 0), App.Vector(0.678153, -5.482987, 0), App.Vector(0.700499, -5.551678, 0), App.Vector(0.73808, -5.650231, 0), App.Vector(0.777425, -5.741972, 0), App.Vector(0.818117, -5.827147, 0), App.Vector(0.862124, -5.904959, 0), App.Vector(0.907872, -5.976378, 0), App.Vector(0.956957, -6.040691, 0), App.Vector(0.992904, -6.079069, 0), App.Vector(1.010487, -6.097842, 0)], [4, 1, 1, 1, 1, 1, 1, 1, 4], [0, 0.000111117, 0.000216677, 0.000316284, 0.000410537, 0.0004997, 0.000584285, 0.000664837, 0.000741964], False, 3, [1, 1, 1, 1, 1, 1, 1, 1, 1, 1, 1], False),
    Part.BSplineCurve([App.Vector(0.598828, -4.832952, 0), App.Vector(0.595597, -4.85643, 0), App.Vector(0.589074, -4.903831, 0), App.Vector(0.586659, -4.976406, 0), App.Vector(0.587557, -5.050685, 0), App.Vector(0.594817, -5.126817, 0), App.Vector(0.605617, -5.204851, 0), App.Vector(0.622386, -5.284337, 0), App.Vector(0.64144, -5.36594, 0), App.Vector(0.658178, -5.420169, 0), App.Vector(0.666694, -5.447761, 0)], [4, 1, 1, 1, 1, 1, 1, 1, 4], [0, 0.000071053, 0.000143451, 0.000217579, 0.000293776, 0.000372705, 0.000453788, 0.000537389, 0.00062399], False, 3, [1, 1, 1, 1, 1, 1, 1, 1, 1, 1, 1], False),
    Part.BSplineCurve([App.Vector(1.27927, -4.100271, 0), App.Vector(1.256549, -4.107887, 0), App.Vector(1.211677, -4.122927, 0), App.Vector(1.146886, -4.149943, 0), App.Vector(1.084999, -4.179748, 0), App.Vector(1.026267, -4.213407, 0), App.Vector(0.970516, -4.250623, 0), App.Vector(0.917135, -4.290511, 0), App.Vector(0.867619, -4.334751, 0), App.Vector(0.820728, -4.381223, 0), App.Vector(0.777894, -4.430895, 0), App.Vector(0.739191, -4.482559, 0), App.Vector(0.704265, -4.536012, 0), App.Vector(0.674639, -4.591755, 0), App.Vector(0.648938, -4.649334, 0), App.Vector(0.627541, -4.708701, 0), App.Vector(0.610302, -4.770012, 0), App.Vector(0.602667, -4.811895, 0), App.Vector(0.598828, -4.832952, 0)], [4, 1, 1, 1, 1, 1, 1, 1, 1, 1, 1, 1, 1, 1, 1, 1, 4], [0, 0.000071873, 0.000141937, 0.00021043, 0.000277827, 0.00034482, 0.000411436, 0.000477547, 0.000543847, 0.000609371, 0.000674111, 0.000737395, 0.000800717, 0.000863278, 0.000926409, 0.000989887, 0.001054071], False, 3, [1, 1, 1, 1, 1, 1, 1, 1, 1, 1, 1, 1, 1, 1, 1, 1, 1, 1, 1], False),
    Part.BSplineCurve([App.Vector(2.174472, -4.211892, 0), App.Vector(2.160017, -4.201722, 0), App.Vector(2.130988, -4.181297, 0), App.Vector(2.084985, -4.154213, 0), App.Vector(2.036914, -4.13002, 0), App.Vector(1.986889, -4.108482, 0), App.Vector(1.934642, -4.090251, 0), App.Vector(1.880455, -4.075149, 0), App.Vector(1.824421, -4.062635, 0), App.Vector(1.766645, -4.052702, 0), App.Vector(1.707579, -4.046541, 0), App.Vector(1.647798, -4.043975, 0), App.Vector(1.587577, -4.044289, 0), App.Vector(1.526754, -4.048377, 0), App.Vector(1.465487, -4.055979, 0), App.Vector(1.403657, -4.067272, 0), App.Vector(1.341361, -4.08188, 0), App.Vector(1.300051, -4.094116, 0), App.Vector(1.27927, -4.100271, 0)], [4, 1, 1, 1, 1, 1, 1, 1, 1, 1, 1, 1, 1, 1, 1, 1, 4], [0, 0.000053004, 0.000106452, 0.000159965, 0.00021437, 0.000269723, 0.00032584, 0.000383034, 0.000441902, 0.000501612, 0.000561055, 0.000621332, 0.000682187, 0.000743824, 0.000806442, 0.000870663, 0.000935672], False, 3, [1, 1, 1, 1, 1, 1, 1, 1, 1, 1, 1, 1, 1, 1, 1, 1, 1, 1, 1], False),
    Part.BSplineCurve([App.Vector(1.385087, -4.444064, 0), App.Vector(1.396785, -4.440543, 0), App.Vector(1.419507, -4.433703, 0), App.Vector(1.453833, -4.427769, 0), App.Vector(1.486776, -4.423777, 0), App.Vector(1.518674, -4.42389, 0), App.Vector(1.549333, -4.427014, 0), App.Vector(1.579078, -4.433143, 0), App.Vector(1.607524, -4.443185, 0), App.Vector(1.644912, -4.460137, 0), App.Vector(1.689315, -4.490613, 0), App.Vector(1.738889, -4.538098, 0), App.Vector(1.785756, -4.59726, 0), App.Vector(1.821562, -4.655123, 0), App.Vector(1.849127, -4.707335, 0), App.Vector(1.870791, -4.750856, 0), App.Vector(1.89201, -4.798158, 0), App.Vector(1.913476, -4.848854, 0), App.Vector(1.934353, -4.90335, 0), App.Vector(1.955949, -4.961088, 0), App.Vector(1.976678, -5.022908, 0), App.Vector(1.990547, -5.065264, 0), App.Vector(1.997664, -5.087001, 0)], [4, 1, 1, 1, 1, 1, 1, 1, 1, 1, 1, 1, 1, 1, 1, 1, 1, 1, 1, 1, 4], [0, 0.000036614, 0.000071118, 0.000104351, 0.000136051, 0.000166572, 0.000196696, 0.000226912, 0.00025688, 0.000319663, 0.000387252, 0.000462211, 0.000545459, 0.000591001, 0.000639322, 0.000691276, 0.000746503, 0.00080446, 0.000866333, 0.000931423, 0.001000043], False, 3, [1, 1, 1, 1, 1, 1, 1, 1, 1, 1, 1, 1, 1, 1, 1, 1, 1, 1, 1, 1, 1, 1, 1], False),
    Part.BSplineCurve([App.Vector(1.279717, -5.300421, 0), App.Vector(1.27294, -5.278567, 0), App.Vector(1.259745, -5.236016, 0), App.Vector(1.241769, -5.173374, 0), App.Vector(1.226342, -5.113593, 0), App.Vector(1.212166, -5.056693, 0), App.Vector(1.2007, -5.002464, 0), App.Vector(1.191127, -4.950976, 0), App.Vector(1.184176, -4.902386, 0), App.Vector(1.176801, -4.843288, 0), App.Vector(1.174083, -4.775498, 0), App.Vector(1.177571, -4.701041, 0), App.Vector(1.190841, -4.636122, 0), App.Vector(1.212005, -4.579952, 0), App.Vector(1.243206, -4.533267, 0), App.Vector(1.282745, -4.494956, 0), App.Vector(1.330236, -4.463831, 0), App.Vector(1.366444, -4.450782, 0), App.Vector(1.385087, -4.444064, 0)], [4, 1, 1, 1, 1, 1, 1, 1, 1, 1, 1, 1, 1, 1, 1, 1, 4], [0, 0.00006864, 0.000133649, 0.000195485, 0.000253853, 0.000309547, 0.000361742, 0.000410931, 0.000456786, 0.000540355, 0.00061416, 0.000679834, 0.00073837, 0.000793104, 0.000846778, 0.000902632, 0.000961913], False, 3, [1, 1, 1, 1, 1, 1, 1, 1, 1, 1, 1, 1, 1, 1, 1, 1, 1, 1, 1], False),
    Part.BSplineCurve([App.Vector(1.851217, -5.930857, 0), App.Vector(1.83672, -5.934835, 0), App.Vector(1.808498, -5.942579, 0), App.Vector(1.765415, -5.947189, 0), App.Vector(1.723755, -5.944764, 0), App.Vector(1.683277, -5.936873, 0), App.Vector(1.64435, -5.921838, 0), App.Vector(1.607227, -5.899775, 0), App.Vector(1.570629, -5.8726, 0), App.Vector(1.53621, -5.837879, 0), App.Vector(1.502366, -5.796581, 0), App.Vector(1.469151, -5.747985, 0), App.Vector(1.436676, -5.691637, 0), App.Vector(1.404081, -5.628213, 0), App.Vector(1.372078, -5.557063, 0), App.Vector(1.340491, -5.478374, 0), App.Vector(1.30921, -5.392153, 0), App.Vector(1.289787, -5.331742, 0), App.Vector(1.279717, -5.300421, 0)], [4, 1, 1, 1, 1, 1, 1, 1, 1, 1, 1, 1, 1, 1, 1, 1, 4], [0, 0.000045048, 0.000087699, 0.000129282, 0.000169824, 0.000210951, 0.00025376, 0.000299034, 0.000347339, 0.00039999, 0.000459064, 0.000523695, 0.000594983, 0.000672913, 0.000757648, 0.000849312, 0.000948005], False, 3, [1, 1, 1, 1, 1, 1, 1, 1, 1, 1, 1, 1, 1, 1, 1, 1, 1, 1, 1], False),
    Part.BSplineCurve([App.Vector(1.997664, -5.087001, 0), App.Vector(2.003988, -5.107667, 0), App.Vector(2.016337, -5.148018, 0), App.Vector(2.033179, -5.207441, 0), App.Vector(2.048794, -5.264125, 0), App.Vector(2.060919, -5.318482, 0), App.Vector(2.071838, -5.370091, 0), App.Vector(2.080848, -5.419041, 0), App.Vector(2.087601, -5.465504, 0), App.Vector(2.093466, -5.52247, 0), App.Vector(2.095946, -5.588459, 0), App.Vector(2.090983, -5.661693, 0), App.Vector(2.075783, -5.726503, 0), App.Vector(2.055809, -5.774384, 0), App.Vector(2.035067, -5.80815, 0), App.Vector(2.016846, -5.831136, 0), App.Vector(1.995891, -5.85253, 0), App.Vector(1.972399, -5.871968, 0), App.Vector(1.946114, -5.889698, 0), App.Vector(1.91688, -5.905028, 0), App.Vector(1.885333, -5.91965, 0), App.Vector(1.862764, -5.927064, 0), App.Vector(1.851217, -5.930857, 0)], [4, 1, 1, 1, 1, 1, 1, 1, 1, 1, 1, 1, 1, 1, 1, 1, 1, 1, 1, 1, 4], [0, 0.000064833, 0.000126591, 0.000185292, 0.000241179, 0.000293631, 0.000343549, 0.000390464, 0.000434447, 0.000515305, 0.000588313, 0.00065394, 0.000714149, 0.000743019, 0.000772585, 0.000801948, 0.000832704, 0.00086391, 0.000896871, 0.000931642, 0.000968074], False, 3, [1, 1, 1, 1, 1, 1, 1, 1, 1, 1, 1, 1, 1, 1, 1, 1, 1, 1, 1, 1, 1, 1, 1], False),
], False)
sketch5.addConstraint([
    Sketcher.Constraint("Block", 1),
    Sketcher.Constraint("Block", 2),
    Sketcher.Constraint("Block", 3),
    Sketcher.Constraint("Block", 4),
    Sketcher.Constraint("Block", 5),
    Sketcher.Constraint("Block", 6),
    Sketcher.Constraint("Block", 7),
    Sketcher.Constraint("Block", 8),
    Sketcher.Constraint("Block", 9),
    Sketcher.Constraint("Block", 10),
    Sketcher.Constraint("Block", 11),
    Sketcher.Constraint("Block", 12),
    Sketcher.Constraint("Block", 13),
    Sketcher.Constraint("Block", 15),
    Sketcher.Constraint("Block", 16),
    Sketcher.Constraint("Block", 17),
    Sketcher.Constraint("Block", 18),
    Sketcher.Constraint("Block", 19),
    Sketcher.Constraint("Block", 20),
    Sketcher.Constraint("Block", 21),
    Sketcher.Constraint("Block", 22),
    Sketcher.Constraint("Block", 23),
    Sketcher.Constraint("Block", 24),
    Sketcher.Constraint("Block", 25),
    Sketcher.Constraint("Block", 26),
    Sketcher.Constraint("Block", 27),
    Sketcher.Constraint("Block", 28),
    Sketcher.Constraint("Coincident", 0, 2, 1, 2),
    Sketcher.Constraint("Coincident", 13, 1, 14, 1),
    Sketcher.Constraint("Coincident", 14, 2, 15, 2),
    Sketcher.Constraint("Coincident", 16, 1, 0, 1),
])
pocket3 = body.newObject("PartDesign::Pocket", "Pocket002")
pocket3.Profile = sketch5
pocket3.Type = "TwoLengths"
pocket3.Length = 1
pocket3.Length2 = 0.4

sketch6 = body.newObject("Sketcher::SketchObject", "Sketch005")
sketch6.AttachmentSupport = (doc.getObject("XZ_Plane"), [""])
sketch6.MapMode = "FlatFace"
sketch6.AttachmentOffset = App.Placement(App.Vector(0, 0, -0.09375 * 25.4), App.Rotation())
sketch6.addGeometry(Part.Circle(App.Vector(0, 0, 0), App.Vector(0, 0, 1), 8), False)
sketch6.addConstraint([
    Sketcher.Constraint("Coincident", 0, 3, -1, 1),
    Sketcher.Constraint("Diameter", 0, Q("0.625 in")),
])
pocket4 = body.newObject("PartDesign::Pocket", "Pocket003")
pocket4.Profile = sketch6
pocket4.Type = "ThroughAll"
pocket4.Reversed = True

doc.recompute()
